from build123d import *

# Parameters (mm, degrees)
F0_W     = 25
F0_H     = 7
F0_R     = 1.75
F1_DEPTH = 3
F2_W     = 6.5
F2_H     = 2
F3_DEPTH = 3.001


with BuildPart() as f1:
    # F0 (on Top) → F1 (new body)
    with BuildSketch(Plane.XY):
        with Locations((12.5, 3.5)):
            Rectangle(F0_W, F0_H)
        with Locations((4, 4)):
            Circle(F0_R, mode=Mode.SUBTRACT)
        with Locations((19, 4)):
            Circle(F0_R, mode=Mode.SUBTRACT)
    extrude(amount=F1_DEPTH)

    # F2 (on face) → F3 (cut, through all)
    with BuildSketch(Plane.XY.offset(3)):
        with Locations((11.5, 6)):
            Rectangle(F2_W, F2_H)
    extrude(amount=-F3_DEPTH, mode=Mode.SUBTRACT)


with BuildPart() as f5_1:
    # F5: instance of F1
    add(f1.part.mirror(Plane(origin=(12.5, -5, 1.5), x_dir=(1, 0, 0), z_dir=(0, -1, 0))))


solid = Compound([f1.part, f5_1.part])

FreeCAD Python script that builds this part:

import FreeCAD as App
import Part
import Sketcher


def add_polygon(sketch, points):
    """Adds a closed chain of lines whose ends are joined by coincident constraints."""
    first, n = sketch.GeometryCount, len(points)
    for a, b in zip(points, points[1:] + points[:1]):
        sketch.addGeometry(Part.LineSegment(App.Vector(*a, 0), App.Vector(*b, 0)), False)
    for i in range(n):
        sketch.addConstraint(Sketcher.Constraint("Coincident", first + i, 2, first + (i + 1) % n, 1))

doc = App.newDocument("Part")
body = doc.addObject("PartDesign::Body", "Body")

# Sketch on XY plane
sketch1 = doc.addObject("Sketcher::SketchObject", "Sketch")
body.addObject(sketch1)
sketch1.AttachmentSupport = (doc.XY_Plane, [""])
sketch1.MapMode = "FlatFace"
add_polygon(sketch1, [(0, 7), (0, 0), (25, 0), (25, 7)])  # lines 0-3
sketch1.addGeometry(Part.Circle(App.Vector(4, 4, 0), App.Vector(0, 0, 1), 1.8), False)  # 4
sketch1.addGeometry(Part.Circle(App.Vector(19, 4, 0), App.Vector(0, 0, 1), 1.8), False)  # 5
sketch1.addConstraint(Sketcher.Constraint("Vertical", 0))
sketch1.addConstraint(Sketcher.Constraint("Horizontal", 1))
sketch1.addConstraint(Sketcher.Constraint("Vertical", 2))
sketch1.addConstraint(Sketcher.Constraint("Horizontal", 3))
sketch1.addConstraint(Sketcher.Constraint("Coincident", 0, 2, -1, 1))
sketch1.addConstraint(Sketcher.Constraint("Equal", 4, 5))
sketch1.addConstraint(Sketcher.Constraint("Horizontal", 4, 3, 5, 3))
sketch1.addConstraint(Sketcher.Constraint("Diameter", 4, 3.5))
sketch1.addConstraint(Sketcher.Constraint("DistanceX", 1, 1, 1, 2, 25.0))
sketch1.addConstraint(Sketcher.Constraint("DistanceY", 0, 2, 0, 1, 7.0))
sketch1.addConstraint(Sketcher.Constraint("DistanceX", -1, 1, 4, 3, 4.0))
sketch1.addConstraint(Sketcher.Constraint("DistanceY", -1, 1, 4, 3, 4.0))
sketch1.addConstraint(Sketcher.Constraint("DistanceX", -1, 1, 5, 3, 19.0))
pad1 = doc.addObject("PartDesign::Pad", "Pad")
body.addObject(pad1)
pad1.Profile = sketch1
pad1.Length = 3

# Sketch on XY plane
sketch2 = doc.addObject("Sketcher::SketchObject", "Sketch001")
body.addObject(sketch2)
sketch2.AttachmentSupport = (doc.XY_Plane, [""])
sketch2.MapMode = "FlatFace"
sketch2.AttachmentOffset = App.Placement(App.Vector(0, 0, 3), App.Rotation())
add_polygon(sketch2, [(8.2, 7), (8.2, 5), (14.8, 5), (14.8, 7)])  # lines 0-3
sketch2.addConstraint(Sketcher.Constraint("Vertical", 0))
sketch2.addConstraint(Sketcher.Constraint("Horizontal", 1))
sketch2.addConstraint(Sketcher.Constraint("Vertical", 2))
sketch2.addConstraint(Sketcher.Constraint("Horizontal", 3))
sketch2.addConstraint(Sketcher.Constraint("DistanceY", 0, 2, 0, 1, 2.0))
sketch2.addConstraint(Sketcher.Constraint("DistanceX", 1, 1, 1, 2, 6.5))
sketch2.addConstraint(Sketcher.Constraint("DistanceY", -1, 1, 0, 2, 5.0))
sketch2.addConstraint(Sketcher.Constraint("DistanceX", -1, 1, 0, 2, 8.25))
pocket1 = doc.addObject("PartDesign::Pocket", "Pocket")
body.addObject(pocket1)
pocket1.Profile = sketch2
pocket1.Type = "ThroughAll"
body2 = doc.addObject("PartDesign::Body", "Body001")
doc.recompute()

mirroring = doc.addObject("Part::Mirroring", "Mirroring")
mirroring.Source = body
mirroring.Base = App.Vector(12.5, -5, 1.5)
mirroring.Normal = App.Vector(0, -1, 0)
body2.BaseFeature = mirroring
doc.recompute()
mirroring.Visibility = False

doc.recompute()
